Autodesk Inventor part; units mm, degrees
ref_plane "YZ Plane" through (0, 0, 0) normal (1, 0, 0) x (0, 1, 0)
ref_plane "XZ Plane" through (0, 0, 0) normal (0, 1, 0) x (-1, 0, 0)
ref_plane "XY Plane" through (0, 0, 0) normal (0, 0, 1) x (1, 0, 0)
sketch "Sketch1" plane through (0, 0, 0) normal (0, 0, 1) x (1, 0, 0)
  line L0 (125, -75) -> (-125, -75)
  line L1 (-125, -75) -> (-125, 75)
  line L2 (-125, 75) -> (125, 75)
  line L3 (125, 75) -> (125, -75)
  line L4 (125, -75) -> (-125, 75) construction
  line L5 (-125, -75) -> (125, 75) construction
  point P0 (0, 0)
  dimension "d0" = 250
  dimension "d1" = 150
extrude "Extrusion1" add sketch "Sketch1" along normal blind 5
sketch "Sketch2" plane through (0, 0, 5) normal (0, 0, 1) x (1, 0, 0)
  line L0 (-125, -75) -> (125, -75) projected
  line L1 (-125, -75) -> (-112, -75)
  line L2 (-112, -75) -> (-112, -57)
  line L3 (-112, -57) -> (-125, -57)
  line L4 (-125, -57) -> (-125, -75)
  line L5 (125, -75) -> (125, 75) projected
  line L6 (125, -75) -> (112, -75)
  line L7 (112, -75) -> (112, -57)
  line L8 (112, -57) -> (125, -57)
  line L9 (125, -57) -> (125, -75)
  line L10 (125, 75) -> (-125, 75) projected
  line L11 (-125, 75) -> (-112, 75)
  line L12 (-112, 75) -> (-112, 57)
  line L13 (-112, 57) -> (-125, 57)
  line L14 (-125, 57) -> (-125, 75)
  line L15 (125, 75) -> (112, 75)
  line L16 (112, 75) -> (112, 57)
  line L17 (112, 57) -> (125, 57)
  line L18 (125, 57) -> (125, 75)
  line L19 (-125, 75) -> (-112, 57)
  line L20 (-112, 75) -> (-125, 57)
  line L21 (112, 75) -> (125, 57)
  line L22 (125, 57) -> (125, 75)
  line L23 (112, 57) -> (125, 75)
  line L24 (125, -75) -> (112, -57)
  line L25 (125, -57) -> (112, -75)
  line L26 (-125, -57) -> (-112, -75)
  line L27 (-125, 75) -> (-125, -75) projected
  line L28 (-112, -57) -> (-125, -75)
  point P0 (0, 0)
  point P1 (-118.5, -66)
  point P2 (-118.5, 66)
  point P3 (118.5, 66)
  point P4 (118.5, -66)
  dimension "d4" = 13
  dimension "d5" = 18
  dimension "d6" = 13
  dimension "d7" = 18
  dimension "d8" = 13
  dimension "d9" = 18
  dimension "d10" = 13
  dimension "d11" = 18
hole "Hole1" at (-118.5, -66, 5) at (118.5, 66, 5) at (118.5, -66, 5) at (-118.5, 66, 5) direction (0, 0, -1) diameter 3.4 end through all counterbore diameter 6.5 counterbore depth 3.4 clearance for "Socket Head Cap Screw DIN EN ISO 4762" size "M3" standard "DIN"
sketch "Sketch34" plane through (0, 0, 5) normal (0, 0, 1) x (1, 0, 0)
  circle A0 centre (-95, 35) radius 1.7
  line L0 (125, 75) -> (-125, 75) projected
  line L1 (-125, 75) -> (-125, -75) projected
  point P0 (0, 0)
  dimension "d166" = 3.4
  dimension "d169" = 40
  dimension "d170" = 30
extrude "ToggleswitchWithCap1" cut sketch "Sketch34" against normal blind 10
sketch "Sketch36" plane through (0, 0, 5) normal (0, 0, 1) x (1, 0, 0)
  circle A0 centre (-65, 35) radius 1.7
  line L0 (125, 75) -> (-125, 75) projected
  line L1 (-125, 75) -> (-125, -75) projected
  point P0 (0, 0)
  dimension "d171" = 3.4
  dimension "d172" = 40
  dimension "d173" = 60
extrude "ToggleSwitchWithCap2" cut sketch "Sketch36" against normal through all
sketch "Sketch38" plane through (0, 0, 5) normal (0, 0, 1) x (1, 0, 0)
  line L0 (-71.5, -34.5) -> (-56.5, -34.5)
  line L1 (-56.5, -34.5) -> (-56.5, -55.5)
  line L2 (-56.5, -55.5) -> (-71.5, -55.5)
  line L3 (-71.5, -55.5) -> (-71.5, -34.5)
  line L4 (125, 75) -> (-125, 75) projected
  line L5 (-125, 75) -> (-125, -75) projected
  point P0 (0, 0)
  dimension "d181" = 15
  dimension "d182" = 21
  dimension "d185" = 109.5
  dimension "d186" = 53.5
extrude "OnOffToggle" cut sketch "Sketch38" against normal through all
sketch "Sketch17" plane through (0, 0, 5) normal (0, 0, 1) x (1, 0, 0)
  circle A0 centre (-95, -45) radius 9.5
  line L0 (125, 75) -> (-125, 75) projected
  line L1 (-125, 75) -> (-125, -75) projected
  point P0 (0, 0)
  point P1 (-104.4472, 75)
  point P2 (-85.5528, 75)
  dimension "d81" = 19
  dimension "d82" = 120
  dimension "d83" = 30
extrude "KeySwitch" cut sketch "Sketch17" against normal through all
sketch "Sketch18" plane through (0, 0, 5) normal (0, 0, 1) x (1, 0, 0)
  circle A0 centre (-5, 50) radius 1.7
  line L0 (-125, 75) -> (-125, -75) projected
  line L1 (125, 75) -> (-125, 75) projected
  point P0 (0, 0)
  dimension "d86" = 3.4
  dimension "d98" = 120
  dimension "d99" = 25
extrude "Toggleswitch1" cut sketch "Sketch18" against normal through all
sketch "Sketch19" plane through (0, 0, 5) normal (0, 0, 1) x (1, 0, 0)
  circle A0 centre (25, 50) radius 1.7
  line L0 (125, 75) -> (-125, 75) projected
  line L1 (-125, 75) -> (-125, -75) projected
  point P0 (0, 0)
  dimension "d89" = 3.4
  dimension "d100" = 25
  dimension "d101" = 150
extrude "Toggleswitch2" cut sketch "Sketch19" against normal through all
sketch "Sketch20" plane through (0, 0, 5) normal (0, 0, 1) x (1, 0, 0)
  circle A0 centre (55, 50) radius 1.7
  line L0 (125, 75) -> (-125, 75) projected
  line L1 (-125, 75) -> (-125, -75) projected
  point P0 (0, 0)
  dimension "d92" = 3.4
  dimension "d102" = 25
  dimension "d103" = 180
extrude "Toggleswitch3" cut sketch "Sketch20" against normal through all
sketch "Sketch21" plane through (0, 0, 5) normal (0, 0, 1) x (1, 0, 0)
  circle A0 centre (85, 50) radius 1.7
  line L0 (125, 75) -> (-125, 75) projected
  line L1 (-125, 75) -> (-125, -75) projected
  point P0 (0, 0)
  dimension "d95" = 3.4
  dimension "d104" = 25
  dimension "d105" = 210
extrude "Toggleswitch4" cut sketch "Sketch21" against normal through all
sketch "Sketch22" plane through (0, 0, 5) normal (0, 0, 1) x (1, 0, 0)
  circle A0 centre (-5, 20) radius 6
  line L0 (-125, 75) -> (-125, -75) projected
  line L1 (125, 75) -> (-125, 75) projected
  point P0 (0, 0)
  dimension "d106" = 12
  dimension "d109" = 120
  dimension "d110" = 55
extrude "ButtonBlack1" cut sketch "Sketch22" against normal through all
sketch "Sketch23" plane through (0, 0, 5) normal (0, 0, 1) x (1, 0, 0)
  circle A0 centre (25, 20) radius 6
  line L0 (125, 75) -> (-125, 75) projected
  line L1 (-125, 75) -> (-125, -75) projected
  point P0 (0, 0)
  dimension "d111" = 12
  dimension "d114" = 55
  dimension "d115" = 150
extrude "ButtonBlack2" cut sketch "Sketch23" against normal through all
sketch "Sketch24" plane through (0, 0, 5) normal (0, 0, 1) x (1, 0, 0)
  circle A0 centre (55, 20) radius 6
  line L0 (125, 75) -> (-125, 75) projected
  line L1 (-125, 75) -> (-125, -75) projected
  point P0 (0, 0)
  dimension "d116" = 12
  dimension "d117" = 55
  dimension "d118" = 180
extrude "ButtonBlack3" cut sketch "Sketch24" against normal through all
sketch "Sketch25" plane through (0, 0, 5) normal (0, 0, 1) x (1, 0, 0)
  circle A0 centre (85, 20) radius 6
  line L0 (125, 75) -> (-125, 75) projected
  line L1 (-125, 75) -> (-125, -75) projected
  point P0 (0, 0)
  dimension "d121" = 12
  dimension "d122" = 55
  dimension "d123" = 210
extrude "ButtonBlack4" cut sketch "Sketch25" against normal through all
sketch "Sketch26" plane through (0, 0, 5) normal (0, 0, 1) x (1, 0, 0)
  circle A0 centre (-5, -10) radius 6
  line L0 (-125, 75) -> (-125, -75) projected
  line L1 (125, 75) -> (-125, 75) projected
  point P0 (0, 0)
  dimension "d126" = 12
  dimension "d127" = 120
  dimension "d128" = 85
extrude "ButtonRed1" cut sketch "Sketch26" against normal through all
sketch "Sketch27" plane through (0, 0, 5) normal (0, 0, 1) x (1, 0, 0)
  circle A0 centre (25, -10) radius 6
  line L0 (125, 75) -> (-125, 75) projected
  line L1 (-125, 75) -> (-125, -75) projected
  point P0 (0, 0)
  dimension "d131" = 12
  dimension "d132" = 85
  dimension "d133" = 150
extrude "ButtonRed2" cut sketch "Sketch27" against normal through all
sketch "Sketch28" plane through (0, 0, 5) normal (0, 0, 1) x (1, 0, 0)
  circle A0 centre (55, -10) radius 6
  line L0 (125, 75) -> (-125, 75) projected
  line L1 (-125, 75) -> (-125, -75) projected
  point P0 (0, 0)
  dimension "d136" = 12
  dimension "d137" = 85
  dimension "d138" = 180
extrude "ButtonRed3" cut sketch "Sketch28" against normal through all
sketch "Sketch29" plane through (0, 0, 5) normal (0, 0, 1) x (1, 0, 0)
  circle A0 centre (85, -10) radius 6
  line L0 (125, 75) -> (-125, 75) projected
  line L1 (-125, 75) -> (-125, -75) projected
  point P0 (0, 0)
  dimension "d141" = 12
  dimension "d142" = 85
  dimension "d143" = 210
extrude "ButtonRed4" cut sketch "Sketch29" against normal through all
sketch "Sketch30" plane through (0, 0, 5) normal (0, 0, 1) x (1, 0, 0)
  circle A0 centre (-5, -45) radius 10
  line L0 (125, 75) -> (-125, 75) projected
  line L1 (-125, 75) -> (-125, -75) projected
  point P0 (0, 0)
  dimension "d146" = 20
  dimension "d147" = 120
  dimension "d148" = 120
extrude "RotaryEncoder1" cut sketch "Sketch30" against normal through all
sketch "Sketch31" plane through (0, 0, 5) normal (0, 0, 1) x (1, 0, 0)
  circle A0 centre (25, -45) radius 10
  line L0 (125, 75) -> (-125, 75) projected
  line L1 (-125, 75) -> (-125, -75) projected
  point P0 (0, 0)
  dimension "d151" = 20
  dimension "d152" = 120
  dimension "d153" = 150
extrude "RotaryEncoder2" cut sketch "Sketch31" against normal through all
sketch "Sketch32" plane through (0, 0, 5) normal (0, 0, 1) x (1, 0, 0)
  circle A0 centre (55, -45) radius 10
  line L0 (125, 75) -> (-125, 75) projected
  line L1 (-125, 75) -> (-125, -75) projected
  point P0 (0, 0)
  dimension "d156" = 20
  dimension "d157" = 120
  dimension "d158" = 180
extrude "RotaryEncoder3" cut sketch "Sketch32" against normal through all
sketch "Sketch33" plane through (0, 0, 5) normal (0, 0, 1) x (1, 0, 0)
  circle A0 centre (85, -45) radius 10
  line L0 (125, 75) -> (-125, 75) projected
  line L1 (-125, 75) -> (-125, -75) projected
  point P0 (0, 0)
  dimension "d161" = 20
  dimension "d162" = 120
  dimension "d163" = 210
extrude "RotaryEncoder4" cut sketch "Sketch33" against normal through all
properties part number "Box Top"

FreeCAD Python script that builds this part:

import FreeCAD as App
import Part
import Sketcher


def add_polygon(sketch, points):
    """Adds a closed chain of lines whose ends are joined by coincident constraints."""
    first, n = sketch.GeometryCount, len(points)
    for a, b in zip(points, points[1:] + points[:1]):
        sketch.addGeometry(Part.LineSegment(App.Vector(*a, 0), App.Vector(*b, 0)), False)
    for i in range(n):
        sketch.addConstraint(Sketcher.Constraint("Coincident", first + i, 2, first + (i + 1) % n, 1))

doc = App.newDocument("Part")
body = doc.addObject("PartDesign::Body", "Body")

# Sketch on XY plane
sketch1 = body.newObject("Sketcher::SketchObject", "Sketch")
sketch1.AttachmentSupport = (doc.getObject("XY_Plane"), [""])
sketch1.MapMode = "FlatFace"
add_polygon(sketch1, [(-125, -75), (125, -75), (125, 75), (-125, 75)])  # lines 0-3
sketch1.addConstraint(Sketcher.Constraint("Horizontal", 0))
sketch1.addConstraint(Sketcher.Constraint("Vertical", 1))
sketch1.addConstraint(Sketcher.Constraint("Horizontal", 2))
sketch1.addConstraint(Sketcher.Constraint("Vertical", 3))
sketch1.addConstraint(Sketcher.Constraint("Symmetric", 0, 2, 2, 2, -1, 1))
sketch1.addConstraint(Sketcher.Constraint("DistanceX", 0, 1, 0, 2, 250.0))
sketch1.addConstraint(Sketcher.Constraint("DistanceY", 1, 1, 1, 2, 150.0))
pad1 = body.newObject("PartDesign::Pad", "Pad")
pad1.Profile = sketch1
pad1.Length = 5

# Sketch on XY plane
sketch2 = body.newObject("Sketcher::SketchObject", "Sketch001")
sketch2.AttachmentSupport = (doc.getObject("XY_Plane"), [""])
sketch2.MapMode = "FlatFace"
sketch2.AttachmentOffset = App.Placement(App.Vector(0, 0, 5), App.Rotation())
sketch2.addGeometry(Part.Circle(App.Vector(-118.5, -66, 0), App.Vector(0, 0, 1), 1.7), False)
sketch2.addGeometry(Part.Circle(App.Vector(118.5, 66, 0), App.Vector(0, 0, 1), 1.7), False)
sketch2.addGeometry(Part.Circle(App.Vector(118.5, -66, 0), App.Vector(0, 0, 1), 1.7), False)
sketch2.addGeometry(Part.Circle(App.Vector(-118.5, 66, 0), App.Vector(0, 0, 1), 1.7), False)
sketch2.addConstraint(Sketcher.Constraint("Equal", 0, 1))
sketch2.addConstraint(Sketcher.Constraint("Equal", 1, 2))
sketch2.addConstraint(Sketcher.Constraint("Equal", 2, 3))
sketch2.addConstraint(Sketcher.Constraint("Symmetric", 0, 3, 1, 3, -1, 1))
sketch2.addConstraint(Sketcher.Constraint("Symmetric", 2, 3, 3, 3, -1, 1))
sketch2.addConstraint(Sketcher.Constraint("Symmetric", 0, 3, 2, 3, -2))
sketch2.addConstraint(Sketcher.Constraint("Diameter", 0, 3.4))
sketch2.addConstraint(Sketcher.Constraint("DistanceY", 0, 3, -1, 1, 66.0))
sketch2.addConstraint(Sketcher.Constraint("DistanceX", 0, 3, 1, 3, 237.0))
doc.recompute()
hole = body.newObject("PartDesign::Hole", "Hole")
hole.Profile = sketch2
hole.ThreadType = "None"
hole.Diameter = 3.4
hole.DepthType = "ThroughAll"
hole.HoleCutType = "Counterbore"
hole.HoleCutDiameter = 6.5
hole.HoleCutDepth = 3.4

# Sketch on XY plane
sketch3 = body.newObject("Sketcher::SketchObject", "Sketch002")
sketch3.AttachmentSupport = (doc.getObject("XY_Plane"), [""])
sketch3.MapMode = "FlatFace"
sketch3.AttachmentOffset = App.Placement(App.Vector(0, 0, 5), App.Rotation())
sketch3.addGeometry(Part.Circle(App.Vector(-95, 35, 0), App.Vector(0, 0, 1), 1.7), False)
sketch3.addConstraint(Sketcher.Constraint("Diameter", 0, 3.4))
sketch3.addConstraint(Sketcher.Constraint("DistanceX", 0, 3, -1, 1, 95.0))
sketch3.addConstraint(Sketcher.Constraint("DistanceY", -1, 1, 0, 3, 35.0))
pocket1 = body.newObject("PartDesign::Pocket", "Pocket")
pocket1.Profile = sketch3
pocket1.Length = 10

# Sketch on XY plane
sketch4 = body.newObject("Sketcher::SketchObject", "Sketch003")
sketch4.AttachmentSupport = (doc.getObject("XY_Plane"), [""])
sketch4.MapMode = "FlatFace"
sketch4.AttachmentOffset = App.Placement(App.Vector(0, 0, 5), App.Rotation())
sketch4.addGeometry(Part.Circle(App.Vector(-65, 35, 0), App.Vector(0, 0, 1), 1.7), False)
sketch4.addConstraint(Sketcher.Constraint("Diameter", 0, 3.4))
sketch4.addConstraint(Sketcher.Constraint("DistanceX", 0, 3, -1, 1, 65.0))
sketch4.addConstraint(Sketcher.Constraint("DistanceY", -1, 1, 0, 3, 35.0))
pocket2 = body.newObject("PartDesign::Pocket", "Pocket001")
pocket2.Profile = sketch4
pocket2.Type = "ThroughAll"

# Sketch on XY plane
sketch5 = body.newObject("Sketcher::SketchObject", "Sketch004")
sketch5.AttachmentSupport = (doc.getObject("XY_Plane"), [""])
sketch5.MapMode = "FlatFace"
sketch5.AttachmentOffset = App.Placement(App.Vector(0, 0, 5), App.Rotation())
add_polygon(sketch5, [(-56.5, -34.5), (-71.5, -34.5), (-71.5, -55.5), (-56.5, -55.5)])  # lines 0-3
sketch5.addConstraint(Sketcher.Constraint("Horizontal", 0))
sketch5.addConstraint(Sketcher.Constraint("Vertical", 1))
sketch5.addConstraint(Sketcher.Constraint("Horizontal", 2))
sketch5.addConstraint(Sketcher.Constraint("Vertical", 3))
sketch5.addConstraint(Sketcher.Constraint("DistanceX", 0, 2, 0, 1, 15.0))
sketch5.addConstraint(Sketcher.Constraint("DistanceY", 1, 2, 1, 1, 21.0))
sketch5.addConstraint(Sketcher.Constraint("DistanceX", 0, 2, -1, 1, 71.5))
sketch5.addConstraint(Sketcher.Constraint("DistanceY", 0, 2, -1, 1, 34.5))
pocket3 = body.newObject("PartDesign::Pocket", "Pocket002")
pocket3.Profile = sketch5
pocket3.Type = "ThroughAll"

# Sketch on XY plane
sketch6 = body.newObject("Sketcher::SketchObject", "Sketch005")
sketch6.AttachmentSupport = (doc.getObject("XY_Plane"), [""])
sketch6.MapMode = "FlatFace"
sketch6.AttachmentOffset = App.Placement(App.Vector(0, 0, 5), App.Rotation())
sketch6.addGeometry(Part.Circle(App.Vector(-95, -45, 0), App.Vector(0, 0, 1), 9.5), False)
sketch6.addConstraint(Sketcher.Constraint("Diameter", 0, 19.0))
sketch6.addConstraint(Sketcher.Constraint("DistanceX", 0, 3, -1, 1, 95.0))
sketch6.addConstraint(Sketcher.Constraint("DistanceY", 0, 3, -1, 1, 45.0))
pocket4 = body.newObject("PartDesign::Pocket", "Pocket003")
pocket4.Profile = sketch6
pocket4.Type = "ThroughAll"

# Sketch on XY plane
sketch7 = body.newObject("Sketcher::SketchObject", "Sketch006")
sketch7.AttachmentSupport = (doc.getObject("XY_Plane"), [""])
sketch7.MapMode = "FlatFace"
sketch7.AttachmentOffset = App.Placement(App.Vector(0, 0, 5), App.Rotation())
sketch7.addGeometry(Part.Circle(App.Vector(-5, 50, 0), App.Vector(0, 0, 1), 1.7), False)
sketch7.addConstraint(Sketcher.Constraint("Diameter", 0, 3.4))
sketch7.addConstraint(Sketcher.Constraint("DistanceX", 0, 3, -1, 1, 5.0))
sketch7.addConstraint(Sketcher.Constraint("DistanceY", -1, 1, 0, 3, 50.0))
pocket5 = body.newObject("PartDesign::Pocket", "Pocket004")
pocket5.Profile = sketch7
pocket5.Type = "ThroughAll"

# Sketch on XY plane
sketch8 = body.newObject("Sketcher::SketchObject", "Sketch007")
sketch8.AttachmentSupport = (doc.getObject("XY_Plane"), [""])
sketch8.MapMode = "FlatFace"
sketch8.AttachmentOffset = App.Placement(App.Vector(0, 0, 5), App.Rotation())
sketch8.addGeometry(Part.Circle(App.Vector(25, 50, 0), App.Vector(0, 0, 1), 1.7), False)
sketch8.addConstraint(Sketcher.Constraint("Diameter", 0, 3.4))
sketch8.addConstraint(Sketcher.Constraint("DistanceX", -1, 1, 0, 3, 25.0))
sketch8.addConstraint(Sketcher.Constraint("DistanceY", -1, 1, 0, 3, 50.0))
pocket6 = body.newObject("PartDesign::Pocket", "Pocket005")
pocket6.Profile = sketch8
pocket6.Type = "ThroughAll"

# Sketch on XY plane
sketch9 = body.newObject("Sketcher::SketchObject", "Sketch008")
sketch9.AttachmentSupport = (doc.getObject("XY_Plane"), [""])
sketch9.MapMode = "FlatFace"
sketch9.AttachmentOffset = App.Placement(App.Vector(0, 0, 5), App.Rotation())
sketch9.addGeometry(Part.Circle(App.Vector(55, 50, 0), App.Vector(0, 0, 1), 1.7), False)
sketch9.addConstraint(Sketcher.Constraint("Diameter", 0, 3.4))
sketch9.addConstraint(Sketcher.Constraint("DistanceX", -1, 1, 0, 3, 55.0))
sketch9.addConstraint(Sketcher.Constraint("DistanceY", -1, 1, 0, 3, 50.0))
pocket7 = body.newObject("PartDesign::Pocket", "Pocket006")
pocket7.Profile = sketch9
pocket7.Type = "ThroughAll"

# Sketch on XY plane
sketch10 = body.newObject("Sketcher::SketchObject", "Sketch009")
sketch10.AttachmentSupport = (doc.getObject("XY_Plane"), [""])
sketch10.MapMode = "FlatFace"
sketch10.AttachmentOffset = App.Placement(App.Vector(0, 0, 5), App.Rotation())
sketch10.addGeometry(Part.Circle(App.Vector(85, 50, 0), App.Vector(0, 0, 1), 1.7), False)
sketch10.addConstraint(Sketcher.Constraint("Diameter", 0, 3.4))
sketch10.addConstraint(Sketcher.Constraint("DistanceX", -1, 1, 0, 3, 85.0))
sketch10.addConstraint(Sketcher.Constraint("DistanceY", -1, 1, 0, 3, 50.0))
pocket8 = body.newObject("PartDesign::Pocket", "Pocket007")
pocket8.Profile = sketch10
pocket8.Type = "ThroughAll"

# Sketch on XY plane
sketch11 = body.newObject("Sketcher::SketchObject", "Sketch010")
sketch11.AttachmentSupport = (doc.getObject("XY_Plane"), [""])
sketch11.MapMode = "FlatFace"
sketch11.AttachmentOffset = App.Placement(App.Vector(0, 0, 5), App.Rotation())
sketch11.addGeometry(Part.Circle(App.Vector(-5, 20, 0), App.Vector(0, 0, 1), 6), False)
sketch11.addConstraint(Sketcher.Constraint("Diameter", 0, 12.0))
sketch11.addConstraint(Sketcher.Constraint("DistanceX", 0, 3, -1, 1, 5.0))
sketch11.addConstraint(Sketcher.Constraint("DistanceY", -1, 1, 0, 3, 20.0))
pocket9 = body.newObject("PartDesign::Pocket", "Pocket008")
pocket9.Profile = sketch11
pocket9.Type = "ThroughAll"

# Sketch on XY plane
sketch12 = body.newObject("Sketcher::SketchObject", "Sketch011")
sketch12.AttachmentSupport = (doc.getObject("XY_Plane"), [""])
sketch12.MapMode = "FlatFace"
sketch12.AttachmentOffset = App.Placement(App.Vector(0, 0, 5), App.Rotation())
sketch12.addGeometry(Part.Circle(App.Vector(25, 20, 0), App.Vector(0, 0, 1), 6), False)
sketch12.addConstraint(Sketcher.Constraint("Diameter", 0, 12.0))
sketch12.addConstraint(Sketcher.Constraint("DistanceX", -1, 1, 0, 3, 25.0))
sketch12.addConstraint(Sketcher.Constraint("DistanceY", -1, 1, 0, 3, 20.0))
pocket10 = body.newObject("PartDesign::Pocket", "Pocket009")
pocket10.Profile = sketch12
pocket10.Type = "ThroughAll"

# Sketch on XY plane
sketch13 = body.newObject("Sketcher::SketchObject", "Sketch012")
sketch13.AttachmentSupport = (doc.getObject("XY_Plane"), [""])
sketch13.MapMode = "FlatFace"
sketch13.AttachmentOffset = App.Placement(App.Vector(0, 0, 5), App.Rotation())
sketch13.addGeometry(Part.Circle(App.Vector(55, 20, 0), App.Vector(0, 0, 1), 6), False)
sketch13.addConstraint(Sketcher.Constraint("Diameter", 0, 12.0))
sketch13.addConstraint(Sketcher.Constraint("DistanceX", -1, 1, 0, 3, 55.0))
sketch13.addConstraint(Sketcher.Constraint("DistanceY", -1, 1, 0, 3, 20.0))
pocket11 = body.newObject("PartDesign::Pocket", "Pocket010")
pocket11.Profile = sketch13
pocket11.Type = "ThroughAll"

# Sketch on XY plane
sketch14 = body.newObject("Sketcher::SketchObject", "Sketch013")
sketch14.AttachmentSupport = (doc.getObject("XY_Plane"), [""])
sketch14.MapMode = "FlatFace"
sketch14.AttachmentOffset = App.Placement(App.Vector(0, 0, 5), App.Rotation())
sketch14.addGeometry(Part.Circle(App.Vector(85, 20, 0), App.Vector(0, 0, 1), 6), False)
sketch14.addConstraint(Sketcher.Constraint("Diameter", 0, 12.0))
sketch14.addConstraint(Sketcher.Constraint("DistanceX", -1, 1, 0, 3, 85.0))
sketch14.addConstraint(Sketcher.Constraint("DistanceY", -1, 1, 0, 3, 20.0))
pocket12 = body.newObject("PartDesign::Pocket", "Pocket011")
pocket12.Profile = sketch14
pocket12.Type = "ThroughAll"

# Sketch on XY plane
sketch15 = body.newObject("Sketcher::SketchObject", "Sketch014")
sketch15.AttachmentSupport = (doc.getObject("XY_Plane"), [""])
sketch15.MapMode = "FlatFace"
sketch15.AttachmentOffset = App.Placement(App.Vector(0, 0, 5), App.Rotation())
sketch15.addGeometry(Part.Circle(App.Vector(-5, -10, 0), App.Vector(0, 0, 1), 6), False)
sketch15.addConstraint(Sketcher.Constraint("Diameter", 0, 12.0))
sketch15.addConstraint(Sketcher.Constraint("DistanceX", 0, 3, -1, 1, 5.0))
sketch15.addConstraint(Sketcher.Constraint("DistanceY", 0, 3, -1, 1, 10.0))
pocket13 = body.newObject("PartDesign::Pocket", "Pocket012")
pocket13.Profile = sketch15
pocket13.Type = "ThroughAll"

# Sketch on XY plane
sketch16 = body.newObject("Sketcher::SketchObject", "Sketch015")
sketch16.AttachmentSupport = (doc.getObject("XY_Plane"), [""])
sketch16.MapMode = "FlatFace"
sketch16.AttachmentOffset = App.Placement(App.Vector(0, 0, 5), App.Rotation())
sketch16.addGeometry(Part.Circle(App.Vector(25, -10, 0), App.Vector(0, 0, 1), 6), False)
sketch16.addConstraint(Sketcher.Constraint("Diameter", 0, 12.0))
sketch16.addConstraint(Sketcher.Constraint("DistanceX", -1, 1, 0, 3, 25.0))
sketch16.addConstraint(Sketcher.Constraint("DistanceY", 0, 3, -1, 1, 10.0))
pocket14 = body.newObject("PartDesign::Pocket", "Pocket013")
pocket14.Profile = sketch16
pocket14.Type = "ThroughAll"

# Sketch on XY plane
sketch17 = body.newObject("Sketcher::SketchObject", "Sketch016")
sketch17.AttachmentSupport = (doc.getObject("XY_Plane"), [""])
sketch17.MapMode = "FlatFace"
sketch17.AttachmentOffset = App.Placement(App.Vector(0, 0, 5), App.Rotation())
sketch17.addGeometry(Part.Circle(App.Vector(55, -10, 0), App.Vector(0, 0, 1), 6), False)
sketch17.addConstraint(Sketcher.Constraint("Diameter", 0, 12.0))
sketch17.addConstraint(Sketcher.Constraint("DistanceX", -1, 1, 0, 3, 55.0))
sketch17.addConstraint(Sketcher.Constraint("DistanceY", 0, 3, -1, 1, 10.0))
pocket15 = body.newObject("PartDesign::Pocket", "Pocket014")
pocket15.Profile = sketch17
pocket15.Type = "ThroughAll"

# Sketch on XY plane
sketch18 = body.newObject("Sketcher::SketchObject", "Sketch017")
sketch18.AttachmentSupport = (doc.getObject("XY_Plane"), [""])
sketch18.MapMode = "FlatFace"
sketch18.AttachmentOffset = App.Placement(App.Vector(0, 0, 5), App.Rotation())
sketch18.addGeometry(Part.Circle(App.Vector(85, -10, 0), App.Vector(0, 0, 1), 6), False)
sketch18.addConstraint(Sketcher.Constraint("Diameter", 0, 12.0))
sketch18.addConstraint(Sketcher.Constraint("DistanceX", -1, 1, 0, 3, 85.0))
sketch18.addConstraint(Sketcher.Constraint("DistanceY", 0, 3, -1, 1, 10.0))
pocket16 = body.newObject("PartDesign::Pocket", "Pocket015")
pocket16.Profile = sketch18
pocket16.Type = "ThroughAll"

# Sketch on XY plane
sketch19 = body.newObject("Sketcher::SketchObject", "Sketch018")
sketch19.AttachmentSupport = (doc.getObject("XY_Plane"), [""])
sketch19.MapMode = "FlatFace"
sketch19.AttachmentOffset = App.Placement(App.Vector(0, 0, 5), App.Rotation())
sketch19.addGeometry(Part.Circle(App.Vector(-5, -45, 0), App.Vector(0, 0, 1), 10), False)
sketch19.addConstraint(Sketcher.Constraint("Diameter", 0, 20.0))
sketch19.addConstraint(Sketcher.Constraint("DistanceX", 0, 3, -1, 1, 5.0))
sketch19.addConstraint(Sketcher.Constraint("DistanceY", 0, 3, -1, 1, 45.0))
pocket17 = body.newObject("PartDesign::Pocket", "Pocket016")
pocket17.Profile = sketch19
pocket17.Type = "ThroughAll"

# Sketch on XY plane
sketch20 = body.newObject("Sketcher::SketchObject", "Sketch019")
sketch20.AttachmentSupport = (doc.getObject("XY_Plane"), [""])
sketch20.MapMode = "FlatFace"
sketch20.AttachmentOffset = App.Placement(App.Vector(0, 0, 5), App.Rotation())
sketch20.addGeometry(Part.Circle(App.Vector(25, -45, 0), App.Vector(0, 0, 1), 10), False)
sketch20.addConstraint(Sketcher.Constraint("Diameter", 0, 20.0))
sketch20.addConstraint(Sketcher.Constraint("DistanceX", -1, 1, 0, 3, 25.0))
sketch20.addConstraint(Sketcher.Constraint("DistanceY", 0, 3, -1, 1, 45.0))
pocket18 = body.newObject("PartDesign::Pocket", "Pocket017")
pocket18.Profile = sketch20
pocket18.Type = "ThroughAll"

# Sketch on XY plane
sketch21 = body.newObject("Sketcher::SketchObject", "Sketch020")
sketch21.AttachmentSupport = (doc.getObject("XY_Plane"), [""])
sketch21.MapMode = "FlatFace"
sketch21.AttachmentOffset = App.Placement(App.Vector(0, 0, 5), App.Rotation())
sketch21.addGeometry(Part.Circle(App.Vector(55, -45, 0), App.Vector(0, 0, 1), 10), False)
sketch21.addConstraint(Sketcher.Constraint("Diameter", 0, 20.0))
sketch21.addConstraint(Sketcher.Constraint("DistanceX", -1, 1, 0, 3, 55.0))
sketch21.addConstraint(Sketcher.Constraint("DistanceY", 0, 3, -1, 1, 45.0))
pocket19 = body.newObject("PartDesign::Pocket", "Pocket018")
pocket19.Profile = sketch21
pocket19.Type = "ThroughAll"

# Sketch on XY plane
sketch22 = body.newObject("Sketcher::SketchObject", "Sketch021")
sketch22.AttachmentSupport = (doc.getObject("XY_Plane"), [""])
sketch22.MapMode = "FlatFace"
sketch22.AttachmentOffset = App.Placement(App.Vector(0, 0, 5), App.Rotation())
sketch22.addGeometry(Part.Circle(App.Vector(85, -45, 0), App.Vector(0, 0, 1), 10), False)
sketch22.addConstraint(Sketcher.Constraint("Diameter", 0, 20.0))
sketch22.addConstraint(Sketcher.Constraint("DistanceX", -1, 1, 0, 3, 85.0))
sketch22.addConstraint(Sketcher.Constraint("DistanceY", 0, 3, -1, 1, 45.0))
pocket20 = body.newObject("PartDesign::Pocket", "Pocket019")
pocket20.Profile = sketch22
pocket20.Type = "ThroughAll"

doc.recompute()
